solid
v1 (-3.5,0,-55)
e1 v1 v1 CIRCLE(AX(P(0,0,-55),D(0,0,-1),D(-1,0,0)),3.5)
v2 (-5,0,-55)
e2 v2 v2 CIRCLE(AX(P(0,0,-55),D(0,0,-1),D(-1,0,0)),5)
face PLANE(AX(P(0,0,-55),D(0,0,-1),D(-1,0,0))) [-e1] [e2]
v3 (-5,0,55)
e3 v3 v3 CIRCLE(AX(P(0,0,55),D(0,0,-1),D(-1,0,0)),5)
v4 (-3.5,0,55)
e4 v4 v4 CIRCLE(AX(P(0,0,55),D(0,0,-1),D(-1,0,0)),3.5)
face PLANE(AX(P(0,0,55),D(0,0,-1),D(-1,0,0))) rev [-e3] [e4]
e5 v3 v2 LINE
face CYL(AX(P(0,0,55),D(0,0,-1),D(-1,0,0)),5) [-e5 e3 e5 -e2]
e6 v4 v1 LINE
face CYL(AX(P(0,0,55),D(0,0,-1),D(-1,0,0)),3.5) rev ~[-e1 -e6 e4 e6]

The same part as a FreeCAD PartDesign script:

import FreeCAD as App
import Part
import Sketcher


def faces_at(feature, points):
    """Names of the faces that lie closest to the given points."""
    faces = feature.Shape.Faces
    near = lambda p: min(range(len(faces)), key=lambda i: faces[i].distToShape(Part.Vertex(*p))[0])
    return sorted({f"Face{near(p) + 1}" for p in points})


def add_polygon(sketch, points):
    """Adds a closed chain of lines whose ends are joined by coincident constraints."""
    first, n = sketch.GeometryCount, len(points)
    for a, b in zip(points, points[1:] + points[:1]):
        sketch.addGeometry(Part.LineSegment(App.Vector(*a, 0), App.Vector(*b, 0)), False)
    for i in range(n):
        sketch.addConstraint(Sketcher.Constraint("Coincident", first + i, 2, first + (i + 1) % n, 1))

doc = App.newDocument("Part")
body = doc.addObject("PartDesign::Body", "Body")

sketch1 = body.newObject("Sketcher::SketchObject", "Sketch")
sketch1.AttachmentSupport = (doc.getObject("XZ_Plane"), [""])
sketch1.MapMode = "FlatFace"
add_polygon(sketch1, [(-5, 55), (-5, -55), (0, -55), (0, 55)])
sketch1.addConstraint(Sketcher.Constraint("Vertical", 0))
sketch1.addConstraint(Sketcher.Constraint("Horizontal", 1))
sketch1.addConstraint(Sketcher.Constraint("Vertical", 2))
sketch1.addConstraint(Sketcher.Constraint("Horizontal", 3))
sketch1.addConstraint(Sketcher.Constraint("Symmetric", 1, 2, 2, 2, -1, 1))
sketch1.addConstraint(Sketcher.Constraint("DistanceX", 1, 1, 1, 2, 5.0))
sketch1.addConstraint(Sketcher.Constraint("DistanceY", 0, 2, 0, 1, 110.0))
revolution = body.newObject("PartDesign::Revolution", "Revolution")
revolution.Profile = sketch1
revolution.ReferenceAxis = (sketch1, ["V_Axis"])
revolution.Angle = 360
doc.recompute()

thickness = body.newObject("PartDesign::Thickness", "Thickness")
thickness.Base = (revolution, faces_at(revolution, [(0, 0, 55), (0, 0, -55)]))
thickness.Value = 1.5
thickness.Reversed = True
thickness.Join = "Arc"

doc.recompute()
